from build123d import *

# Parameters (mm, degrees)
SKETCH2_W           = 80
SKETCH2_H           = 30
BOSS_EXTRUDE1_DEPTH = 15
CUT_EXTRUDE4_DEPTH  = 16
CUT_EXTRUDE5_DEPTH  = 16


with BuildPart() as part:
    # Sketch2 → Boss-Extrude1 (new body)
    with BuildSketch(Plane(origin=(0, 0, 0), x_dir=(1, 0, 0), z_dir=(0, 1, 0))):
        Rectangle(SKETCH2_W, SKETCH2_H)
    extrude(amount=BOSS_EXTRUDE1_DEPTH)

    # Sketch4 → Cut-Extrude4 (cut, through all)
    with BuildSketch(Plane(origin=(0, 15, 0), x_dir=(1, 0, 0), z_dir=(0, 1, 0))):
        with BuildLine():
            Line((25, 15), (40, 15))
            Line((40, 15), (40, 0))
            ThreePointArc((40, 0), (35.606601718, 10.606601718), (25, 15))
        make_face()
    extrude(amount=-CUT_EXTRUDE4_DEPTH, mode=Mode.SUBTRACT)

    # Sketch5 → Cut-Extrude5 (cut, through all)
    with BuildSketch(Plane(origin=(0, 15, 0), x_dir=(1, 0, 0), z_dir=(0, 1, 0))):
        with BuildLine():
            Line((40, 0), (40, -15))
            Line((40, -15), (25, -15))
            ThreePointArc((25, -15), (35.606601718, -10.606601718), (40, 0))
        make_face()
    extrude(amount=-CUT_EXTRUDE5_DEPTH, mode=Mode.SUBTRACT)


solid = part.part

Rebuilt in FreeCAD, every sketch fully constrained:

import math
import FreeCAD as App
import Part
import Sketcher
from FreeCAD import Vector


def add_polygon(sketch, points):
    """Adds a closed chain of lines whose ends are joined by coincident constraints."""
    first, n = sketch.GeometryCount, len(points)
    for a, b in zip(points, points[1:] + points[:1]):
        sketch.addGeometry(Part.LineSegment(App.Vector(*a, 0), App.Vector(*b, 0)), False)
    for i in range(n):
        sketch.addConstraint(Sketcher.Constraint("Coincident", first + i, 2, first + (i + 1) % n, 1))

doc = App.newDocument("Part")
body = doc.addObject("PartDesign::Body", "Body")

# Sketch on XZ plane
sketch1 = body.newObject("Sketcher::SketchObject", "Sketch")
sketch1.AttachmentSupport = (doc.getObject("XZ_Plane"), [""])
sketch1.MapMode = "FlatFace"
add_polygon(sketch1, [(-40, -15), (-40, 15), (40, 15), (40, -15)])  # lines 0-3
sketch1.addConstraint([
    Sketcher.Constraint("Vertical", 0),
    Sketcher.Constraint("Horizontal", 1),
    Sketcher.Constraint("Vertical", 2),
    Sketcher.Constraint("Horizontal", 3),
    Sketcher.Constraint("Symmetric", 0, 2, 2, 2, -1, 1),
    Sketcher.Constraint("DistanceX", 1, 1, 1, 2, 80.0),
    Sketcher.Constraint("DistanceY", 0, 1, 0, 2, 30.0),
])
pad1 = body.newObject("PartDesign::Pad", "Pad")
pad1.Profile = sketch1
pad1.Length = 15
pad1.Reversed = True

# Sketch on XZ plane
sketch2 = body.newObject("Sketcher::SketchObject", "Sketch001")
sketch2.AttachmentSupport = (doc.getObject("XZ_Plane"), [""])
sketch2.MapMode = "FlatFace"
sketch2.AttachmentOffset = App.Placement(Vector(0, 0, -15), App.Rotation())
sketch2.addGeometry([
    Part.LineSegment(Vector(40, -15, 0), Vector(25, -15, 0)),
    Part.ArcOfCircle(Part.Circle(Vector(25, 0, 0), Vector(0, 0, 1), 15), math.radians(-90), math.radians(0)),
    Part.LineSegment(Vector(40, 0, 0), Vector(40, -15, 0)),
], False)
sketch2.addConstraint([
    Sketcher.Constraint("Tangent", 0, 2, 1, 1),
    Sketcher.Constraint("Tangent", 1, 2, 2, 1),
    Sketcher.Constraint("Coincident", 2, 2, 0, 1),
    Sketcher.Constraint("Horizontal", 0),
    Sketcher.Constraint("Vertical", 2),
    Sketcher.Constraint("PointOnObject", 1, 3, -1),
    Sketcher.Constraint("Radius", 1, 15.0),
    Sketcher.Constraint("DistanceX", -1, 1, 1, 3, 25.0),
])
pocket1 = body.newObject("PartDesign::Pocket", "Pocket")
pocket1.Profile = sketch2
pocket1.Type = "ThroughAll"
pocket1.Reversed = True

# Sketch on XZ plane
sketch3 = body.newObject("Sketcher::SketchObject", "Sketch002")
sketch3.AttachmentSupport = (doc.getObject("XZ_Plane"), [""])
sketch3.MapMode = "FlatFace"
sketch3.AttachmentOffset = App.Placement(Vector(0, 0, -15), App.Rotation())
sketch3.addGeometry([
    Part.LineSegment(Vector(40, 15, 0), Vector(40, 0, 0)),
    Part.ArcOfCircle(Part.Circle(Vector(25, 0, 0), Vector(0, 0, 1), 15), math.radians(0), math.radians(90)),
    Part.LineSegment(Vector(25, 15, 0), Vector(40, 15, 0)),
], False)
sketch3.addConstraint([
    Sketcher.Constraint("Tangent", 0, 2, 1, 1),
    Sketcher.Constraint("Tangent", 1, 2, 2, 1),
    Sketcher.Constraint("Coincident", 2, 2, 0, 1),
    Sketcher.Constraint("Vertical", 0),
    Sketcher.Constraint("Horizontal", 2),
    Sketcher.Constraint("PointOnObject", 1, 3, -1),
    Sketcher.Constraint("Radius", 1, 15.0),
    Sketcher.Constraint("DistanceX", -1, 1, 1, 3, 25.0),
])
pocket2 = body.newObject("PartDesign::Pocket", "Pocket001")
pocket2.Profile = sketch3
pocket2.Type = "ThroughAll"
pocket2.Reversed = True

doc.recompute()
